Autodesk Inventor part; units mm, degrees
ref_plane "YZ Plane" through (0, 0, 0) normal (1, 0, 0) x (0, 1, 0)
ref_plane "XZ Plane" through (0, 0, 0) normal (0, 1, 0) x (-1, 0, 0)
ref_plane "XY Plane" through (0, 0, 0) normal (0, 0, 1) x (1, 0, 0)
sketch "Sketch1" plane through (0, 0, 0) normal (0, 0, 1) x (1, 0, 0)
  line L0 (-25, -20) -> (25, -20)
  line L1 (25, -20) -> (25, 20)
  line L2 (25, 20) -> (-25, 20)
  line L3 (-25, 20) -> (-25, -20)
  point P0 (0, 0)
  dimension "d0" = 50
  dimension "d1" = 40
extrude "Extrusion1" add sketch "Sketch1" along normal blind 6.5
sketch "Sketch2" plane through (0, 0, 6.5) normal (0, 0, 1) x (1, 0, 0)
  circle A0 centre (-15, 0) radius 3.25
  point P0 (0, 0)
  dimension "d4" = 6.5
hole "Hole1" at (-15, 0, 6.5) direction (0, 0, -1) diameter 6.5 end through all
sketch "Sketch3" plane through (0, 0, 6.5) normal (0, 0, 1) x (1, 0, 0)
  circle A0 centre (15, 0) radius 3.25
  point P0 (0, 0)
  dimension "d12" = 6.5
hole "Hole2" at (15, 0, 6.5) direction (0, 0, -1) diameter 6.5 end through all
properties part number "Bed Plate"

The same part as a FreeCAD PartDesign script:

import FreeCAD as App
import Part
import Sketcher

V = App.Vector


def add_polygon(sketch, points):
    """Adds a closed chain of lines whose ends are joined by coincident constraints."""
    first, n = sketch.GeometryCount, len(points)
    for a, b in zip(points, points[1:] + points[:1]):
        sketch.addGeometry(Part.LineSegment(App.Vector(*a, 0), App.Vector(*b, 0)), False)
    for i in range(n):
        sketch.addConstraint(Sketcher.Constraint("Coincident", first + i, 2, first + (i + 1) % n, 1))

doc = App.newDocument("Part")
body = doc.addObject("PartDesign::Body", "Body")

# Sketch on XY plane
sketch1 = body.newObject("Sketcher::SketchObject", "Sketch")
sketch1.AttachmentSupport = (doc.getObject("XY_Plane"), [""])
sketch1.MapMode = "FlatFace"
add_polygon(sketch1, [(-25, 20), (-25, -20), (25, -20), (25, 20)])  # lines 0-3
sketch1.addConstraint([
    Sketcher.Constraint("Vertical", 0),
    Sketcher.Constraint("Horizontal", 1),
    Sketcher.Constraint("Vertical", 2),
    Sketcher.Constraint("Horizontal", 3),
    Sketcher.Constraint("Symmetric", 0, 2, 2, 2, -1, 1),
    Sketcher.Constraint("DistanceX", 1, 1, 1, 2, 50.0),
    Sketcher.Constraint("DistanceY", 0, 2, 0, 1, 40.0),
])
pad1 = body.newObject("PartDesign::Pad", "Pad")
pad1.Profile = sketch1
pad1.Length = 6.5

# Sketch on XY plane
sketch2 = body.newObject("Sketcher::SketchObject", "Sketch001")
sketch2.AttachmentSupport = (doc.getObject("XY_Plane"), [""])
sketch2.MapMode = "FlatFace"
sketch2.AttachmentOffset = App.Placement(V(0, 0, 6.5), App.Rotation())
sketch2.addGeometry(Part.Circle(V(-15, 0, 0), V(0, 0, 1), 3.25), False)
sketch2.addConstraint([
    Sketcher.Constraint("PointOnObject", 0, 3, -1),
    Sketcher.Constraint("Diameter", 0, 6.5),
    Sketcher.Constraint("DistanceX", 0, 3, -1, 1, 15.0),
])
doc.recompute()
hole = body.newObject("PartDesign::Hole", "Hole")
hole.Profile = sketch2
hole.ThreadType = "None"
hole.Diameter = 6.5
hole.DepthType = "ThroughAll"

# Sketch on XY plane
sketch3 = body.newObject("Sketcher::SketchObject", "Sketch002")
sketch3.AttachmentSupport = (doc.getObject("XY_Plane"), [""])
sketch3.MapMode = "FlatFace"
sketch3.AttachmentOffset = App.Placement(V(0, 0, 6.5), App.Rotation())
sketch3.addGeometry(Part.Circle(V(15, 0, 0), V(0, 0, 1), 3.25), False)
sketch3.addConstraint([
    Sketcher.Constraint("PointOnObject", 0, 3, -1),
    Sketcher.Constraint("Diameter", 0, 6.5),
    Sketcher.Constraint("DistanceX", -1, 1, 0, 3, 15.0),
])
doc.recompute()
hole2 = body.newObject("PartDesign::Hole", "Hole001")
hole2.Profile = sketch3
hole2.ThreadType = "None"
hole2.Diameter = 6.5
hole2.DepthType = "ThroughAll"

doc.recompute()
